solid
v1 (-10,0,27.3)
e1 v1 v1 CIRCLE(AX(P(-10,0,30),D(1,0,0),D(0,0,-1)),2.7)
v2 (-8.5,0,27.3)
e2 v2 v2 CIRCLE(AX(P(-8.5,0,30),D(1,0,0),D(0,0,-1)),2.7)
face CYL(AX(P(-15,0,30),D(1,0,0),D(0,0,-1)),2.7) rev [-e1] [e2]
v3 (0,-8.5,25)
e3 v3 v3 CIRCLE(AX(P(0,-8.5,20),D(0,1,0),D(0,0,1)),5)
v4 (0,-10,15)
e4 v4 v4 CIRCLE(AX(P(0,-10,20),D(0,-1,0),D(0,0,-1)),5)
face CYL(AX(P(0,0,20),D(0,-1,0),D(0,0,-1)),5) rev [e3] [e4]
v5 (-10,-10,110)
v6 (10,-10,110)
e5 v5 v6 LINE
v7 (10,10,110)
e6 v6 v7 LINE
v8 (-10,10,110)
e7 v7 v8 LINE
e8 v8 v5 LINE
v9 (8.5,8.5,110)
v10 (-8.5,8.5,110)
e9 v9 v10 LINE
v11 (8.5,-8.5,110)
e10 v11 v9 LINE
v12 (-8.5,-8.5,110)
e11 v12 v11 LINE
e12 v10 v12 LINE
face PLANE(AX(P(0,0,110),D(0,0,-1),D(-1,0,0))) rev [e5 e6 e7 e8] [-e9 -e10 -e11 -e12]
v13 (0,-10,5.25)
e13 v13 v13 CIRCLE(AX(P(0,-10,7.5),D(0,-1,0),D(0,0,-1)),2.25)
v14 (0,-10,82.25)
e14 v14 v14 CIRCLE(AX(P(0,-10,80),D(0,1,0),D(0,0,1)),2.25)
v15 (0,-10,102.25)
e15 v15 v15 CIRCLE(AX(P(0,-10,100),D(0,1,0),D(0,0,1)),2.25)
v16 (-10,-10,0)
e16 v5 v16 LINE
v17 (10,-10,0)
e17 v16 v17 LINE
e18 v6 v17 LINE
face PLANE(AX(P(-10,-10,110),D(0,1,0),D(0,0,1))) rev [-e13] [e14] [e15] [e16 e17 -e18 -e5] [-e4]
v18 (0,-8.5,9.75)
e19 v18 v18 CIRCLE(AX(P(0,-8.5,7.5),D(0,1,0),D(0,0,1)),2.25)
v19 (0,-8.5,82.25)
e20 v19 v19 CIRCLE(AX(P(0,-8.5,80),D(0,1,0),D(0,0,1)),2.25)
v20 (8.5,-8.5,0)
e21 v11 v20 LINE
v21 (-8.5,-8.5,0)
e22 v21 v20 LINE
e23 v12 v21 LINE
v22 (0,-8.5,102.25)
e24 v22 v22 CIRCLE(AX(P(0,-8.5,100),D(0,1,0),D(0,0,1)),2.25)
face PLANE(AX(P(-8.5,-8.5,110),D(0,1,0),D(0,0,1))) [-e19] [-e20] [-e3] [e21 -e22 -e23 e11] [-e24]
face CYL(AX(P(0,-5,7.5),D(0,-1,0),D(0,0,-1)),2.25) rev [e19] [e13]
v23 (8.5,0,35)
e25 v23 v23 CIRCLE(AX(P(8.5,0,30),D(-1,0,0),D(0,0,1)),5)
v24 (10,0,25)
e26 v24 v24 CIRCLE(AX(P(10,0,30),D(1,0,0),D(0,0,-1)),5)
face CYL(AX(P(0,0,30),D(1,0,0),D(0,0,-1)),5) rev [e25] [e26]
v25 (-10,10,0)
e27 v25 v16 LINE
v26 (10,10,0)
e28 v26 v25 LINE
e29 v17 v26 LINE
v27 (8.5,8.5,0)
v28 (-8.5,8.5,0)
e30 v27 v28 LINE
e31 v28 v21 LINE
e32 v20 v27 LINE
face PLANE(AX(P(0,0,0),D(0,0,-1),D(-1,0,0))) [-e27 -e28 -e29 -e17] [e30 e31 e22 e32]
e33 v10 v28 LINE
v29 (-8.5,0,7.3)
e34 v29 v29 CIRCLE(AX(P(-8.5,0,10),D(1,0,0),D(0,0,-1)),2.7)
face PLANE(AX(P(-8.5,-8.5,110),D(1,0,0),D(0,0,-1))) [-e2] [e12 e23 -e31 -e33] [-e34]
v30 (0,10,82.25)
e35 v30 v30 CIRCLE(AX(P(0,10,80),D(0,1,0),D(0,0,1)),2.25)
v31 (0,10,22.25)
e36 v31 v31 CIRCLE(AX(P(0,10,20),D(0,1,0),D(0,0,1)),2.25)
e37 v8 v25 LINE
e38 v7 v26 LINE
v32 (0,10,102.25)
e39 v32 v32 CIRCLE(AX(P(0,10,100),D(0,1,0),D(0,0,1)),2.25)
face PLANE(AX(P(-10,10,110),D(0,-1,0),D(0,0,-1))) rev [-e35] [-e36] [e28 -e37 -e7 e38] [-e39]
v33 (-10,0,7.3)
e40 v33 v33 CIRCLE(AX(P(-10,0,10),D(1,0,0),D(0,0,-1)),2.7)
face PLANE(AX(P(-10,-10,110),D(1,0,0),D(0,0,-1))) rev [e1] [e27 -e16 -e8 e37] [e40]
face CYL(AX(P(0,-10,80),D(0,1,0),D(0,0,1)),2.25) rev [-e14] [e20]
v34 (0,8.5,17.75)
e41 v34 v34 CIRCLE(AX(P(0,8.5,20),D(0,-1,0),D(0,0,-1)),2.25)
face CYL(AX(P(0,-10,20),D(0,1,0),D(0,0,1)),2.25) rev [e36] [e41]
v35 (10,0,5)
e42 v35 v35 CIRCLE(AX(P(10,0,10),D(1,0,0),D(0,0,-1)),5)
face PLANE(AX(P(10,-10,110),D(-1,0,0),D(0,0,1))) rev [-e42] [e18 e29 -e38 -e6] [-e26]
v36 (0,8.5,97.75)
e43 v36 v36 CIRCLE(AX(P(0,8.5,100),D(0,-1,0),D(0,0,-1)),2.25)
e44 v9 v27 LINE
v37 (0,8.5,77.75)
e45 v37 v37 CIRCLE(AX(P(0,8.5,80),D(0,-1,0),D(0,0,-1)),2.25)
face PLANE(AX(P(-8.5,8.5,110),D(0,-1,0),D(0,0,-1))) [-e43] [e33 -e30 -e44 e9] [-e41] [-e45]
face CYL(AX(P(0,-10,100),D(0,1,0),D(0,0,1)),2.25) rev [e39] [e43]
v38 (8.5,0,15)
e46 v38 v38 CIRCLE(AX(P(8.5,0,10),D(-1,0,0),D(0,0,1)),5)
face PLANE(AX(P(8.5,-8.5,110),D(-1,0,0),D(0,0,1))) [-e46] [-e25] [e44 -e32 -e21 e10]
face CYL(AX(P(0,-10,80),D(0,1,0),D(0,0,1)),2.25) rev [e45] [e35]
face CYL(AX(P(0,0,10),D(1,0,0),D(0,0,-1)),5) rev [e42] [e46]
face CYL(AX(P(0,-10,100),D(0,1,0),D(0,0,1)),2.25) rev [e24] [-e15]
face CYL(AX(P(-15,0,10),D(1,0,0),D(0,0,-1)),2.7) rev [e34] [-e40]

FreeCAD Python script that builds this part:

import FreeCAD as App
import Part
import Sketcher
from FreeCAD import Vector


def add_polygon(sketch, points):
    """Adds a closed chain of lines whose ends are joined by coincident constraints."""
    first, n = sketch.GeometryCount, len(points)
    for a, b in zip(points, points[1:] + points[:1]):
        sketch.addGeometry(Part.LineSegment(App.Vector(*a, 0), App.Vector(*b, 0)), False)
    for i in range(n):
        sketch.addConstraint(Sketcher.Constraint("Coincident", first + i, 2, first + (i + 1) % n, 1))

doc = App.newDocument("Part")
body = doc.addObject("PartDesign::Body", "Body")

sketch1 = doc.addObject("Sketcher::SketchObject", "Sketch")
body.addObject(sketch1)
sketch1.AttachmentSupport = (doc.XY_Plane, [""])
sketch1.MapMode = "FlatFace"
add_polygon(sketch1, [(-10, 10), (-10, -10), (10, -10), (10, 10)])
add_polygon(sketch1, [(8, -8), (-8, -8), (-8, 8), (8, 8)])
sketch1.addConstraint(Sketcher.Constraint("Vertical", 0))
sketch1.addConstraint(Sketcher.Constraint("Horizontal", 1))
sketch1.addConstraint(Sketcher.Constraint("Vertical", 2))
sketch1.addConstraint(Sketcher.Constraint("Horizontal", 3))
sketch1.addConstraint(Sketcher.Constraint("Horizontal", 4))
sketch1.addConstraint(Sketcher.Constraint("Vertical", 5))
sketch1.addConstraint(Sketcher.Constraint("Horizontal", 6))
sketch1.addConstraint(Sketcher.Constraint("Vertical", 7))
sketch1.addConstraint(Sketcher.Constraint("Symmetric", 0, 2, 2, 2, -1, 1))
sketch1.addConstraint(Sketcher.Constraint("Symmetric", 4, 2, 6, 2, -1, 1))
sketch1.addConstraint(Sketcher.Constraint("Equal", 3, 0))
sketch1.addConstraint(Sketcher.Constraint("Equal", 6, 5))
sketch1.addConstraint(Sketcher.Constraint("DistanceX", 1, 1, 1, 2, 20.0))
sketch1.addConstraint(Sketcher.Constraint("DistanceX", 4, 2, 4, 1, 17.0))
pad1 = doc.addObject("PartDesign::Pad", "Pad")
body.addObject(pad1)
pad1.Profile = sketch1
pad1.Length = 110

sketch2 = doc.addObject("Sketcher::SketchObject", "Sketch001")
body.addObject(sketch2)
sketch2.AttachmentSupport = (doc.YZ_Plane, [""])
sketch2.MapMode = "FlatFace"
sketch2.AttachmentOffset = App.Placement(Vector(0, 0, 10), App.Rotation())
sketch2.addGeometry(Part.Circle(Vector(0, 30, 0), Vector(0, 0, 1), 2.7), False)
sketch2.addGeometry(Part.Circle(Vector(0, 10, 0), Vector(0, 0, 1), 2.7), False)
sketch2.addConstraint(Sketcher.Constraint("Equal", 0, 1))
sketch2.addConstraint(Sketcher.Constraint("PointOnObject", 0, 3, -2))
sketch2.addConstraint(Sketcher.Constraint("PointOnObject", 1, 3, -2))
sketch2.addConstraint(Sketcher.Constraint("Diameter", 0, 5.4))
sketch2.addConstraint(Sketcher.Constraint("DistanceY", -1, 1, 0, 3, 30.0))
sketch2.addConstraint(Sketcher.Constraint("DistanceY", -1, 1, 1, 3, 10.0))
pocket1 = doc.addObject("PartDesign::Pocket", "Pocket")
body.addObject(pocket1)
pocket1.Profile = sketch2
pocket1.Length = 25

sketch3 = doc.addObject("Sketcher::SketchObject", "Sketch002")
body.addObject(sketch3)
sketch3.AttachmentSupport = (doc.XZ_Plane, [""])
sketch3.MapMode = "FlatFace"
sketch3.AttachmentOffset = App.Placement(Vector(0, 0, -10), App.Rotation())
sketch3.addGeometry(Part.Circle(Vector(0, 100, 0), Vector(0, 0, 1), 2.2), False)
sketch3.addGeometry(Part.Circle(Vector(0, 80, 0), Vector(0, 0, 1), 2.2), False)
sketch3.addGeometry(Part.Circle(Vector(0, 20, 0), Vector(0, 0, 1), 2.2), False)
sketch3.addConstraint(Sketcher.Constraint("Equal", 0, 1))
sketch3.addConstraint(Sketcher.Constraint("Equal", 1, 2))
sketch3.addConstraint(Sketcher.Constraint("PointOnObject", 0, 3, -2))
sketch3.addConstraint(Sketcher.Constraint("PointOnObject", 1, 3, -2))
sketch3.addConstraint(Sketcher.Constraint("PointOnObject", 2, 3, -2))
sketch3.addConstraint(Sketcher.Constraint("Diameter", 0, 4.5))
sketch3.addConstraint(Sketcher.Constraint("DistanceY", -1, 1, 0, 3, 100.0))
sketch3.addConstraint(Sketcher.Constraint("DistanceY", -1, 1, 1, 3, 80.0))
sketch3.addConstraint(Sketcher.Constraint("DistanceY", -1, 1, 2, 3, 20.0))
pocket2 = doc.addObject("PartDesign::Pocket", "Pocket001")
body.addObject(pocket2)
pocket2.Profile = sketch3
pocket2.Length = 20
pocket2.Reversed = True

sketch4 = doc.addObject("Sketcher::SketchObject", "Sketch003")
body.addObject(sketch4)
sketch4.AttachmentSupport = (doc.XZ_Plane, [""])
sketch4.MapMode = "FlatFace"
sketch4.AttachmentOffset = App.Placement(Vector(0, 0, 10), App.Rotation())
sketch4.addGeometry(Part.Circle(Vector(0, 7.5, 0), Vector(0, 0, 1), 2.2), False)
sketch4.addConstraint(Sketcher.Constraint("PointOnObject", 0, 3, -2))
sketch4.addConstraint(Sketcher.Constraint("Diameter", 0, 4.5))
sketch4.addConstraint(Sketcher.Constraint("DistanceY", -1, 1, 0, 3, 7.5))
pocket3 = doc.addObject("PartDesign::Pocket", "Pocket002")
body.addObject(pocket3)
pocket3.Profile = sketch4
pocket3.Length = 5

sketch5 = doc.addObject("Sketcher::SketchObject", "Sketch004")
body.addObject(sketch5)
sketch5.AttachmentSupport = (doc.XZ_Plane, [""])
sketch5.MapMode = "FlatFace"
sketch5.AttachmentOffset = App.Placement(Vector(0, 0, 10), App.Rotation())
sketch5.addGeometry(Part.Circle(Vector(0, 20, 0), Vector(0, 0, 1), 5), False)
sketch5.addConstraint(Sketcher.Constraint("PointOnObject", 0, 3, -2))
sketch5.addConstraint(Sketcher.Constraint("Diameter", 0, 10.0))
sketch5.addConstraint(Sketcher.Constraint("DistanceY", -1, 1, 0, 3, 20.0))
pocket4 = doc.addObject("PartDesign::Pocket", "Pocket003")
body.addObject(pocket4)
pocket4.Profile = sketch5
pocket4.Length = 10

sketch6 = doc.addObject("Sketcher::SketchObject", "Sketch005")
body.addObject(sketch6)
sketch6.AttachmentSupport = (doc.YZ_Plane, [""])
sketch6.MapMode = "FlatFace"
sketch6.AttachmentOffset = App.Placement(Vector(0, 0, 10), App.Rotation())
sketch6.addGeometry(Part.Circle(Vector(0, 10, 0), Vector(0, 0, 1), 5), False)
sketch6.addGeometry(Part.Circle(Vector(0, 30, 0), Vector(0, 0, 1), 5), False)
sketch6.addConstraint(Sketcher.Constraint("Equal", 0, 1))
sketch6.addConstraint(Sketcher.Constraint("PointOnObject", 0, 3, -2))
sketch6.addConstraint(Sketcher.Constraint("PointOnObject", 1, 3, -2))
sketch6.addConstraint(Sketcher.Constraint("Diameter", 0, 10.0))
sketch6.addConstraint(Sketcher.Constraint("DistanceY", -1, 1, 0, 3, 10.0))
sketch6.addConstraint(Sketcher.Constraint("DistanceY", -1, 1, 1, 3, 30.0))
pocket5 = doc.addObject("PartDesign::Pocket", "Pocket004")
body.addObject(pocket5)
pocket5.Profile = sketch6
pocket5.Length = 10

doc.recompute()
